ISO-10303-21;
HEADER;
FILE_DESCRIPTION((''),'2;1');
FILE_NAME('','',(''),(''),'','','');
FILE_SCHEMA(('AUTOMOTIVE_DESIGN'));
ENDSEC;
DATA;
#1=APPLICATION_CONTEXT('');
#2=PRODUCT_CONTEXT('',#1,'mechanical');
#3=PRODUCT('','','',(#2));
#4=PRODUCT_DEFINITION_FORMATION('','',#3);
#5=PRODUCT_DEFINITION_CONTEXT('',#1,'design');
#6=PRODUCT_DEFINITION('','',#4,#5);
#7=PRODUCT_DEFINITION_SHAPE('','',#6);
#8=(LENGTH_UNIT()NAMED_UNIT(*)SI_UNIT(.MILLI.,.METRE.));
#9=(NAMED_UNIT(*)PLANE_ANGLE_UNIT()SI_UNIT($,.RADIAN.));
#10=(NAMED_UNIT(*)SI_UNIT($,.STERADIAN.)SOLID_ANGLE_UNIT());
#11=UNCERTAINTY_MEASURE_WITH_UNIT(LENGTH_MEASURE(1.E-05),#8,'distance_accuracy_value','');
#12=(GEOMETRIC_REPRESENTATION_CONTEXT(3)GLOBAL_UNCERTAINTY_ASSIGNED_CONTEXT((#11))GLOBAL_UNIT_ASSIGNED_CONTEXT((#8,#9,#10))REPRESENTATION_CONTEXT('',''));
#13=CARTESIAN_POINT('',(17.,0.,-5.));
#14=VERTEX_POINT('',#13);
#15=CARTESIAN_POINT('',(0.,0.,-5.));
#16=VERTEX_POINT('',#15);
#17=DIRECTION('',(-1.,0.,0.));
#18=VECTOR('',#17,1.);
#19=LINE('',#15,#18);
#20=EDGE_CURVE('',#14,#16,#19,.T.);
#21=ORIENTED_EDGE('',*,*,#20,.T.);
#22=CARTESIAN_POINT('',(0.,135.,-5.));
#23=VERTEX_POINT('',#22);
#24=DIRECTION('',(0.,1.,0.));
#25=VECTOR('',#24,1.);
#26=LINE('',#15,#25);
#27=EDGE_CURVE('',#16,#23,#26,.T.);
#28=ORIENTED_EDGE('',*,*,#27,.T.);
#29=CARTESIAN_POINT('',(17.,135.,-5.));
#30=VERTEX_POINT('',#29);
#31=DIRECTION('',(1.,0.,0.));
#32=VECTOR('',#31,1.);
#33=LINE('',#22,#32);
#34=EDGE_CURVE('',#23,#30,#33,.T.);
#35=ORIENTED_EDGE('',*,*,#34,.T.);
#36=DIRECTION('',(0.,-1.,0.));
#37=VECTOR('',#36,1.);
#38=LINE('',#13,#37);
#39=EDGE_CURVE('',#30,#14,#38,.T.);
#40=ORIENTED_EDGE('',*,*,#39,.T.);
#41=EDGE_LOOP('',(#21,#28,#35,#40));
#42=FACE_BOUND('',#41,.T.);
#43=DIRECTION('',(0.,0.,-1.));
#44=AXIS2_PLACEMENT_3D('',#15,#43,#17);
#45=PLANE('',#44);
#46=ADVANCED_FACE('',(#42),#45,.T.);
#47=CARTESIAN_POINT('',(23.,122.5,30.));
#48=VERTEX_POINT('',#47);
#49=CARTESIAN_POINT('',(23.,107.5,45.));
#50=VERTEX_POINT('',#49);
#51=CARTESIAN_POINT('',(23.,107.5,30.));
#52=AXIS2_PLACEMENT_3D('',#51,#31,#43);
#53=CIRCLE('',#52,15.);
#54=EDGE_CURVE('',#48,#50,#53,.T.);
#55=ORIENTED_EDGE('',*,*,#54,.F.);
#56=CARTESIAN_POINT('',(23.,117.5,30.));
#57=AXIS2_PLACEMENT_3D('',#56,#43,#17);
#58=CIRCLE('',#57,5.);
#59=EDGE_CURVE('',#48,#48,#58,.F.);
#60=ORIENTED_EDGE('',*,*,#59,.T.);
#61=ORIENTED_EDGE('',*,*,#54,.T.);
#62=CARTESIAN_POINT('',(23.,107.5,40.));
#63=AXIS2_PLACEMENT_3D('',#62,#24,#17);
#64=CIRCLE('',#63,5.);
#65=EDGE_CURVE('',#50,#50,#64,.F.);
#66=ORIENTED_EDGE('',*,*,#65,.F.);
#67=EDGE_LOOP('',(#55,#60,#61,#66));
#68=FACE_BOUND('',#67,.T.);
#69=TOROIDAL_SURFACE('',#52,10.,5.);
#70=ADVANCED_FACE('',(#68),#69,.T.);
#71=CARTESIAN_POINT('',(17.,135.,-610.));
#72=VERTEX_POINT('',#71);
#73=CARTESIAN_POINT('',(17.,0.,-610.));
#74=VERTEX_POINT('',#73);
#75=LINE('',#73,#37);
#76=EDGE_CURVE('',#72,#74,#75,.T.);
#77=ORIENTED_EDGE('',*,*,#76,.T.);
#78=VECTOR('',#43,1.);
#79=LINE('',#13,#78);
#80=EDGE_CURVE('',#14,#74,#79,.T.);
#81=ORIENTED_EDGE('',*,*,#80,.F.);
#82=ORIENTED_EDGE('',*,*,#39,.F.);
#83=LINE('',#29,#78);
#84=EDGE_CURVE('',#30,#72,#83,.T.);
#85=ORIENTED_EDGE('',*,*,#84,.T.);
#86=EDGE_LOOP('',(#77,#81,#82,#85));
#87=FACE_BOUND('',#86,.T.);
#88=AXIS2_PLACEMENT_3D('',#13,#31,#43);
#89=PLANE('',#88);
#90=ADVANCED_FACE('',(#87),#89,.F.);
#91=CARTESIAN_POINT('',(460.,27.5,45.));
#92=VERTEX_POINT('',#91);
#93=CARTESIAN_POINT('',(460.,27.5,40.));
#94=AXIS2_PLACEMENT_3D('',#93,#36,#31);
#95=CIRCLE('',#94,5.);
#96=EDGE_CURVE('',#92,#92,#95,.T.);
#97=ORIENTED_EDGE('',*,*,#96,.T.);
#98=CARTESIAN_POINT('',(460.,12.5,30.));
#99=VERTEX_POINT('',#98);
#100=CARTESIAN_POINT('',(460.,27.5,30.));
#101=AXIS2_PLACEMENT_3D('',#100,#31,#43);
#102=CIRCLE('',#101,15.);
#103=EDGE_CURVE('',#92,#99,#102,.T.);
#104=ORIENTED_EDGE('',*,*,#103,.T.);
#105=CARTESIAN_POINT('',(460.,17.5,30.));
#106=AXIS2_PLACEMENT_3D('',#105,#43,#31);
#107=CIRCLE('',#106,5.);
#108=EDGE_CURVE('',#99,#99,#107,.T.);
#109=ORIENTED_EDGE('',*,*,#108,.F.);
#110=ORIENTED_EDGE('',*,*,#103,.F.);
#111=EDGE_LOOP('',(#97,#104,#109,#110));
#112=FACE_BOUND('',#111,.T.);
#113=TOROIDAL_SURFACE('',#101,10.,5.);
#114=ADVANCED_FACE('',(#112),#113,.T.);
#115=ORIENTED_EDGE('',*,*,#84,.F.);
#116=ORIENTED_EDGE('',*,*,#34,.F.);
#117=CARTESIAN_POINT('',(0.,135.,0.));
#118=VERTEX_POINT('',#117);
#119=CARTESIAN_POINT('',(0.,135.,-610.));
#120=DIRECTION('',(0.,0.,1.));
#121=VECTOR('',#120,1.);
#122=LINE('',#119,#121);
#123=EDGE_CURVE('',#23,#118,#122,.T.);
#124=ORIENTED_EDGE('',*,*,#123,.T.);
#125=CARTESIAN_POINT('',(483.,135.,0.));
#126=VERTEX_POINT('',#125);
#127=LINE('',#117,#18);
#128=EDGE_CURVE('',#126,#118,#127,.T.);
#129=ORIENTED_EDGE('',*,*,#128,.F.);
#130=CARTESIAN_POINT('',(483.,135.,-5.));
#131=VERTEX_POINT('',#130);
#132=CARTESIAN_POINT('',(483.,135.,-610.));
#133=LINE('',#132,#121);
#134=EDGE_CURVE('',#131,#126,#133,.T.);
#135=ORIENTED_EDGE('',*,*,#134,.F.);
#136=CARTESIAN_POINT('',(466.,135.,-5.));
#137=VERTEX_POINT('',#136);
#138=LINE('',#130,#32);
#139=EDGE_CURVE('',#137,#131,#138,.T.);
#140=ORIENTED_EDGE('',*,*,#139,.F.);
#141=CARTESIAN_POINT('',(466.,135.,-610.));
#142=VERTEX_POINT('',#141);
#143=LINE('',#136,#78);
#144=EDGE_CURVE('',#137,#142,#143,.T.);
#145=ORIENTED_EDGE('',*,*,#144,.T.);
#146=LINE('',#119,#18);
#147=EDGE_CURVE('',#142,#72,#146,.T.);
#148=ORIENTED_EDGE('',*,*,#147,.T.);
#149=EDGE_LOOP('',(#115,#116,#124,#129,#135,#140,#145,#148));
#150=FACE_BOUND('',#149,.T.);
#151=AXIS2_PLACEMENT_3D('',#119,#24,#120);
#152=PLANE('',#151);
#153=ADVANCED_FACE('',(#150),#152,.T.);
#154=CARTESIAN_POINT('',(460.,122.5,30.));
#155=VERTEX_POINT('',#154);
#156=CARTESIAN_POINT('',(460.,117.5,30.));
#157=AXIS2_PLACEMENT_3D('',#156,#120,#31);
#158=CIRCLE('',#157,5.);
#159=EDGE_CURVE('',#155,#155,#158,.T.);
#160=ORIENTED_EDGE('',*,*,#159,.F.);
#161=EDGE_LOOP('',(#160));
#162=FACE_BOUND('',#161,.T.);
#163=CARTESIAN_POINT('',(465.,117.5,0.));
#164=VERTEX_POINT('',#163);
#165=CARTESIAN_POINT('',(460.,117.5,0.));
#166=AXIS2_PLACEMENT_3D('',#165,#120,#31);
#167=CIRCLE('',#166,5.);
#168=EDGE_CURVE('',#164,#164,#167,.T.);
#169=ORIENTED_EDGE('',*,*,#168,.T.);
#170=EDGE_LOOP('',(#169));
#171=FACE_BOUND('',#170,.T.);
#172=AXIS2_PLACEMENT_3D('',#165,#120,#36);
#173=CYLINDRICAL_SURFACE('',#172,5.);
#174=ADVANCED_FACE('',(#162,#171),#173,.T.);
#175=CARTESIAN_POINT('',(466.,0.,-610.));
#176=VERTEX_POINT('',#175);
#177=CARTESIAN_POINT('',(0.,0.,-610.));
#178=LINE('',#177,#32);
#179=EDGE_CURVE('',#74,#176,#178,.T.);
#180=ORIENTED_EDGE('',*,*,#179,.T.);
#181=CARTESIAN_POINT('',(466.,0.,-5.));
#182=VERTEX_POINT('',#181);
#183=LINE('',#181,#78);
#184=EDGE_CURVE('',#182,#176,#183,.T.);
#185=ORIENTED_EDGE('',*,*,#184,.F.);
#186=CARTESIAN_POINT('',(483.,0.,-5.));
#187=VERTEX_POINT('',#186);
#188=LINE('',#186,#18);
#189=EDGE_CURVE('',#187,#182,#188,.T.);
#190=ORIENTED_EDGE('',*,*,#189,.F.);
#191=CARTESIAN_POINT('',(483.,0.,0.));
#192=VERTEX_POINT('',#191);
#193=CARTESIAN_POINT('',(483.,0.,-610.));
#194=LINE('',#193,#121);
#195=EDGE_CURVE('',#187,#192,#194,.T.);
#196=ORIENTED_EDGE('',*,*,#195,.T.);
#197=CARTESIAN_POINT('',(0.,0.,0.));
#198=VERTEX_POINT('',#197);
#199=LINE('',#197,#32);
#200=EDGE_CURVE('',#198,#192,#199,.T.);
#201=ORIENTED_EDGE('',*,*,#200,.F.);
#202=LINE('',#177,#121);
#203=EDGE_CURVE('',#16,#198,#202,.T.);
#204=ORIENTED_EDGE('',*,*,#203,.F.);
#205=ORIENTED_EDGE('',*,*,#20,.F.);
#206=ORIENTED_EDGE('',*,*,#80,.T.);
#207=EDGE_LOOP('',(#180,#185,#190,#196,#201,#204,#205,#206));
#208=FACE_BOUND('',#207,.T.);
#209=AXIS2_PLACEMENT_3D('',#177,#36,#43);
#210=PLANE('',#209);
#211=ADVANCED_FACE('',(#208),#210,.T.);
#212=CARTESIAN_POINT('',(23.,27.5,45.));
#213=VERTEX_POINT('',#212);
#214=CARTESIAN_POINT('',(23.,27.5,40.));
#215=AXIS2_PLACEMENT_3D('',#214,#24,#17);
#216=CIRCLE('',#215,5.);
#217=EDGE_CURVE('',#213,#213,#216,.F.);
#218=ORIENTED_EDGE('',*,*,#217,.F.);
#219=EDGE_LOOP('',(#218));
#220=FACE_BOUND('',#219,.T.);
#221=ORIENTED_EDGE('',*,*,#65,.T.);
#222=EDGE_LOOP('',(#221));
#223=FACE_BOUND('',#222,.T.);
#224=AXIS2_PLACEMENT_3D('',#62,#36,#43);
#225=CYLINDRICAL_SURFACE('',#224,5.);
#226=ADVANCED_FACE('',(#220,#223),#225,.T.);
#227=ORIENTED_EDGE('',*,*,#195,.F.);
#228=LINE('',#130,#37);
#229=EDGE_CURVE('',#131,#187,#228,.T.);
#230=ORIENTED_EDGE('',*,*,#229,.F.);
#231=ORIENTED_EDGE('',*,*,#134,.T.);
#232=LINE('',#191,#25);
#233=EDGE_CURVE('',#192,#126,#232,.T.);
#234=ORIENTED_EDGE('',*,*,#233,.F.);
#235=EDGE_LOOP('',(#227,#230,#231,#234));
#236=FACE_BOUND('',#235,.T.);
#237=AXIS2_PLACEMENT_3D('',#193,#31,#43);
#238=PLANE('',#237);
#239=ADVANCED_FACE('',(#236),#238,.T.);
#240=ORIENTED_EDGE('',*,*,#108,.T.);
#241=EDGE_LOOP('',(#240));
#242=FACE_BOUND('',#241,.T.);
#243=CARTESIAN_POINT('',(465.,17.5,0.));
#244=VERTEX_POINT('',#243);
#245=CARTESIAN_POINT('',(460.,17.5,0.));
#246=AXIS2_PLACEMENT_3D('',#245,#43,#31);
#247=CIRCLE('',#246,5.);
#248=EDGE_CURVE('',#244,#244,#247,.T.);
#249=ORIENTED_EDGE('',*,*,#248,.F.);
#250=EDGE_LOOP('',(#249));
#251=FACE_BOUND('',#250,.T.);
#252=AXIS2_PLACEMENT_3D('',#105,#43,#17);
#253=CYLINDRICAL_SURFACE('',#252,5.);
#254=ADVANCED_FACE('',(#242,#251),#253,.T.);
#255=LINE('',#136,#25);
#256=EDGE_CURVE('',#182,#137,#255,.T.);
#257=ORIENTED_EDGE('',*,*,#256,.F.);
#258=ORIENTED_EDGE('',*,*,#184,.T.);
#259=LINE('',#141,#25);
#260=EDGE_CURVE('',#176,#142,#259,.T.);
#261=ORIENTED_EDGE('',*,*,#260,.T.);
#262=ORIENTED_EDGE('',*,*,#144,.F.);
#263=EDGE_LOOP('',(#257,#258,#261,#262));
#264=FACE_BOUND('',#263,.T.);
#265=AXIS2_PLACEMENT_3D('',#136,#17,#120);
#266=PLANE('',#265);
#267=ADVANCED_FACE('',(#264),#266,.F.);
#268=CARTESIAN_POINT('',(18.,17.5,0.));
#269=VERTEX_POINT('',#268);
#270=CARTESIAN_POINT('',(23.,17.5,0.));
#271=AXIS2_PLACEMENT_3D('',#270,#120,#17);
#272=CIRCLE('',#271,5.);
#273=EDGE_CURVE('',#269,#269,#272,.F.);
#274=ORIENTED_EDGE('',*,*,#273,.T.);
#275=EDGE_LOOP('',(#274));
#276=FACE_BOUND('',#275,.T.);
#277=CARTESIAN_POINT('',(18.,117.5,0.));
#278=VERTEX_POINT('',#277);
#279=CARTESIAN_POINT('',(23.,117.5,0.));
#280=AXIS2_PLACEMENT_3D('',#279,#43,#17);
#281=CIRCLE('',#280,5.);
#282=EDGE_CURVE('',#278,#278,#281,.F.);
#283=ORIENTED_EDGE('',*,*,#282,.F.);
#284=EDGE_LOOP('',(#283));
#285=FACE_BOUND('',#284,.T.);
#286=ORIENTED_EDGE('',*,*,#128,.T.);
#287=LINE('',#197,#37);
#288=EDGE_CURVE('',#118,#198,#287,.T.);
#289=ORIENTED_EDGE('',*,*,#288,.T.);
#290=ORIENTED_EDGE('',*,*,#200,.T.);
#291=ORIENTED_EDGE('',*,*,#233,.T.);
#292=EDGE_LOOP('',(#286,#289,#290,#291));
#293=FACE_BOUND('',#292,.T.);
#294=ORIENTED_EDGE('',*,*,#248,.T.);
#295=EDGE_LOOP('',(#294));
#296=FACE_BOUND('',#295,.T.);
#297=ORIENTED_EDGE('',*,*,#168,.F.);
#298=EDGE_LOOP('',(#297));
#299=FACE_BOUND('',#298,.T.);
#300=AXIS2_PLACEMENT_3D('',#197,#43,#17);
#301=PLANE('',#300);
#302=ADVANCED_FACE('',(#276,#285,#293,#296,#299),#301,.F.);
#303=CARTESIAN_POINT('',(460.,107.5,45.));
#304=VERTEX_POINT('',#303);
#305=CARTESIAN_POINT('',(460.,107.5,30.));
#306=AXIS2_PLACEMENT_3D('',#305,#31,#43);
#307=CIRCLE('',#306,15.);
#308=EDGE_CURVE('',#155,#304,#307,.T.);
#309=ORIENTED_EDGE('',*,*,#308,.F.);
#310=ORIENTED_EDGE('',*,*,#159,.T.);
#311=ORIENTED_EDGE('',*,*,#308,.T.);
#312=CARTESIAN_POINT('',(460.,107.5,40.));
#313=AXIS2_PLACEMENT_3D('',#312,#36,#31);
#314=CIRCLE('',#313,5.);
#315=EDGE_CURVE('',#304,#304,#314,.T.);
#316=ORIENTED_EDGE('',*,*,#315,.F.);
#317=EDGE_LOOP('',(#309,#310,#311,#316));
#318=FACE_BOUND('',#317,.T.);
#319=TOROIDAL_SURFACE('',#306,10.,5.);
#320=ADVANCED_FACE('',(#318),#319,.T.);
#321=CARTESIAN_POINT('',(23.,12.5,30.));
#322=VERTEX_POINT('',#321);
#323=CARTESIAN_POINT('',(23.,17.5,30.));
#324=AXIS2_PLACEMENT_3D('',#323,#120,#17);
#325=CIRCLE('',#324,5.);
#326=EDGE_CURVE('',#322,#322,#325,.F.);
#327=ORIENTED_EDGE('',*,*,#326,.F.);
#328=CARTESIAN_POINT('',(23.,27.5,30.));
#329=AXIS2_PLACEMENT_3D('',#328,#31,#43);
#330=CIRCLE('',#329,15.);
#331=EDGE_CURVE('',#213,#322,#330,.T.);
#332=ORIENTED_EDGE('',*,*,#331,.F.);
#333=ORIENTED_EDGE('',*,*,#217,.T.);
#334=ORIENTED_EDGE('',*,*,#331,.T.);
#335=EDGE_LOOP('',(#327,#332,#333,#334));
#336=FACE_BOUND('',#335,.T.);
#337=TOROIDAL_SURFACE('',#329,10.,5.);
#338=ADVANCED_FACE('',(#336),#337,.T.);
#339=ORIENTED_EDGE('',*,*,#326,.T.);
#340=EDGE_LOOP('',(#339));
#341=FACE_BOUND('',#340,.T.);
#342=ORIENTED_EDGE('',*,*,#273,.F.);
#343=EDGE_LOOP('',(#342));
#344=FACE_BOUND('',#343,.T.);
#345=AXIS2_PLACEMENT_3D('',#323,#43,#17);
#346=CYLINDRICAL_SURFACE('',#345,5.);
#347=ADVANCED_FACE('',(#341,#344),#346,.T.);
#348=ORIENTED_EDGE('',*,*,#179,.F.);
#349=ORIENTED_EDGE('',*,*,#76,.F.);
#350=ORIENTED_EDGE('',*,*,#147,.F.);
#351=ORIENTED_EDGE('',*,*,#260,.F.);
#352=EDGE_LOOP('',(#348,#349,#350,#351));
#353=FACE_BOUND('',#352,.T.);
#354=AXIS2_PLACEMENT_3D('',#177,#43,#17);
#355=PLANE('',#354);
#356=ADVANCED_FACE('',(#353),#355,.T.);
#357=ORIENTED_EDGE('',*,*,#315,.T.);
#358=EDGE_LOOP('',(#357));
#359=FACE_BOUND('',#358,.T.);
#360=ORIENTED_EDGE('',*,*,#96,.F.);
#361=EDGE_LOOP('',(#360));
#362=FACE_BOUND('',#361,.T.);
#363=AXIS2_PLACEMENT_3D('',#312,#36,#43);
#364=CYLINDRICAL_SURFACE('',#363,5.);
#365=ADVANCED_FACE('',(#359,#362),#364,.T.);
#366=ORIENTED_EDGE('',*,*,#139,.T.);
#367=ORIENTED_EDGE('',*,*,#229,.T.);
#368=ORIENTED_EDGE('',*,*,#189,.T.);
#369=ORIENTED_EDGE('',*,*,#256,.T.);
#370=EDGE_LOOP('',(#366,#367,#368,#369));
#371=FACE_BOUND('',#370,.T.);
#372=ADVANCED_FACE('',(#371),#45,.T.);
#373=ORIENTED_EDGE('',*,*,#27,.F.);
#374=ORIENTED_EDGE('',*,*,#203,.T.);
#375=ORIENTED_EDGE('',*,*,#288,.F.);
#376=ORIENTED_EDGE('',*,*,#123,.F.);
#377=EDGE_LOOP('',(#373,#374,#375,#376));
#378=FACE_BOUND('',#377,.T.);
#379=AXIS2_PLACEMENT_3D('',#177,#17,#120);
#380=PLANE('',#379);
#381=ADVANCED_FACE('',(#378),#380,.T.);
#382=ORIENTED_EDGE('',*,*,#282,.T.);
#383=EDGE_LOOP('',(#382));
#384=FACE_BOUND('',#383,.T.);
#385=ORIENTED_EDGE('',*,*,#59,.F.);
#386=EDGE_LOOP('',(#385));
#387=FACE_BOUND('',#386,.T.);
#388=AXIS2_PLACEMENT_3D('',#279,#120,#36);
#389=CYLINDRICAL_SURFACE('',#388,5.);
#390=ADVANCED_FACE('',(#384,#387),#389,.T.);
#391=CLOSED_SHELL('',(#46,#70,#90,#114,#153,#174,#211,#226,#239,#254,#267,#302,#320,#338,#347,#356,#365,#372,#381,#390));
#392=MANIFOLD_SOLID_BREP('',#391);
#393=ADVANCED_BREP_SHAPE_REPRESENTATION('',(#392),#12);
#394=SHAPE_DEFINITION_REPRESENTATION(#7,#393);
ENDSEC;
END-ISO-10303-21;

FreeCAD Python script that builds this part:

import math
import FreeCAD as App
import Part
import Sketcher
from FreeCAD import Vector
Q = App.Units.Quantity

doc = App.newDocument("Part")
body = doc.addObject("PartDesign::Body", "Body")

# Sketch on XY plane
sketch1 = body.newObject("Sketcher::SketchObject", "Sketch")
sketch1.AttachmentSupport = (doc.getObject("XY_Plane"), [""])
sketch1.MapMode = "FlatFace"
sketch1.addGeometry([
    Part.LineSegment(Vector(0, 135, 0), Vector(0, 0, 0)),
    Part.LineSegment(Vector(0, 0, 0), Vector(483, 0, 0)),
    Part.LineSegment(Vector(483, 0, 0), Vector(483, 135, 0)),
    Part.LineSegment(Vector(483, 135, 0), Vector(0, 135, 0)),
], False)
sketch1.addConstraint([
    Sketcher.Constraint("Coincident", 0, 2, 1, 1),
    Sketcher.Constraint("Coincident", 1, 2, 2, 1),
    Sketcher.Constraint("Coincident", 2, 2, 3, 1),
    Sketcher.Constraint("Coincident", 3, 2, 0, 1),
    Sketcher.Constraint("Vertical", 0),
    Sketcher.Constraint("Horizontal", 1),
    Sketcher.Constraint("Vertical", 2),
    Sketcher.Constraint("Horizontal", 3),
    Sketcher.Constraint("Coincident", 0, 2, -1, 1),
    Sketcher.Constraint("DistanceX", 1, 1, 1, 2, Q("483 mm")),
    Sketcher.Constraint("DistanceY", 0, 2, 0, 1, Q("135 mm")),
])
pad1 = body.newObject("PartDesign::Pad", "Pad")
pad1.Profile = sketch1
pad1.Length = 610
pad1.Reversed = True

# Sketch on XY plane
sketch2 = body.newObject("Sketcher::SketchObject", "Sketch001")
sketch2.AttachmentSupport = (doc.getObject("XY_Plane"), [""])
sketch2.MapMode = "FlatFace"
sketch2.AttachmentOffset = App.Placement(Vector(0, 0, -610), App.Rotation())
sketch2.addGeometry([
    Part.LineSegment(Vector(483, 135, 0), Vector(483, 0, 0)),  # 0
    Part.LineSegment(Vector(483, 0, 0), Vector(466, 0, 0)),  # 1
    Part.LineSegment(Vector(466, 0, 0), Vector(466, 135, 0)),  # 2
    Part.LineSegment(Vector(466, 135, 0), Vector(483, 135, 0)),  # 3
    Part.LineSegment(Vector(17, 135, 0), Vector(17, 0, 0)),  # 4
    Part.LineSegment(Vector(17, 0, 0), Vector(0, 0, 0)),  # 5
    Part.LineSegment(Vector(0, 0, 0), Vector(0, 135, 0)),  # 6
    Part.LineSegment(Vector(0, 135, 0), Vector(17, 135, 0)),  # 7
], False)
sketch2.addConstraint([
    Sketcher.Constraint("Coincident", 0, 2, 1, 1),
    Sketcher.Constraint("Coincident", 1, 2, 2, 1),
    Sketcher.Constraint("Coincident", 2, 2, 3, 1),
    Sketcher.Constraint("Coincident", 3, 2, 0, 1),
    Sketcher.Constraint("Coincident", 4, 2, 5, 1),
    Sketcher.Constraint("Coincident", 5, 2, 6, 1),
    Sketcher.Constraint("Coincident", 6, 2, 7, 1),
    Sketcher.Constraint("Coincident", 7, 2, 4, 1),
    Sketcher.Constraint("Vertical", 0),
    Sketcher.Constraint("Horizontal", 1),
    Sketcher.Constraint("Vertical", 2),
    Sketcher.Constraint("Horizontal", 3),
    Sketcher.Constraint("Vertical", 4),
    Sketcher.Constraint("Horizontal", 5),
    Sketcher.Constraint("Vertical", 6),
    Sketcher.Constraint("Horizontal", 7),
    Sketcher.Constraint("Coincident", 5, 2, -1, 1),
    Sketcher.Constraint("PointOnObject", 0, 2, -1),
    Sketcher.Constraint("Horizontal", 3, 2, 6, 2),
    Sketcher.Constraint("Equal", 3, 5),
    Sketcher.Constraint("DistanceX", 1, 2, 1, 1, Q("17 mm")),
    Sketcher.Constraint("DistanceY", 0, 2, 0, 1, Q("135 mm")),
    Sketcher.Constraint("DistanceX", -1, 1, 0, 2, Q("483 mm")),
])
pocket1 = body.newObject("PartDesign::Pocket", "Pocket")
pocket1.Profile = sketch2
pocket1.Length = 605
pocket1.Reversed = True

# Sketch on XY plane
sketch3 = body.newObject("Sketcher::SketchObject", "Sketch002")
sketch3.AttachmentSupport = (doc.getObject("XY_Plane"), [""])
sketch3.MapMode = "FlatFace"
sketch3.addGeometry(Part.Circle(Vector(460, 117.5, 0), Vector(0, 0, 1), 5), False)
sketch3.addConstraint([
    Sketcher.Constraint("Diameter", 0, Q("10 mm")),
    Sketcher.Constraint("DistanceX", -1, 1, 0, 3, Q("460 mm")),
    Sketcher.Constraint("DistanceY", -1, 1, 0, 3, Q("117.5 mm")),
])

# Sketch on YZ plane
sketch4 = body.newObject("Sketcher::SketchObject", "Sketch003")
sketch4.AttachmentSupport = (doc.getObject("YZ_Plane"), [""])
sketch4.MapMode = "FlatFace"
sketch4.AttachmentOffset = App.Placement(Vector(0, 0, 460), App.Rotation())
sketch4.addGeometry([
    Part.LineSegment(Vector(117.5, 0, 0), Vector(117.5, 30, 0)),  # 0
    Part.ArcOfCircle(Part.Circle(Vector(107.5, 30, 0), Vector(0, 0, 1), 10), math.radians(0), math.radians(90)),  # 1
    Part.LineSegment(Vector(107.5, 40, 0), Vector(27.5, 40, 0)),  # 2
    Part.ArcOfCircle(Part.Circle(Vector(27.5, 30, 0), Vector(0, 0, 1), 10), math.radians(90), math.radians(180)),  # 3
    Part.LineSegment(Vector(17.5, 30, 0), Vector(17.5, 0, 0)),  # 4
], False)
sketch4.addConstraint([
    Sketcher.Constraint("Tangent", 0, 2, 1, 1),
    Sketcher.Constraint("Tangent", 1, 2, 2, 1),
    Sketcher.Constraint("Tangent", 2, 2, 3, 1),
    Sketcher.Constraint("Tangent", 3, 2, 4, 1),
    Sketcher.Constraint("Vertical", 0),
    Sketcher.Constraint("Horizontal", 2),
    Sketcher.Constraint("Vertical", 4),
    Sketcher.Constraint("Equal", 1, 3),
    Sketcher.Constraint("PointOnObject", 0, 1, -1),
    Sketcher.Constraint("PointOnObject", 4, 2, -1),
    Sketcher.Constraint("Radius", 1, Q("10 mm")),
    Sketcher.Constraint("DistanceX", 2, 2, 2, 1, Q("80 mm")),
    Sketcher.Constraint("DistanceY", 0, 1, 0, 2, Q("30 mm")),
    Sketcher.Constraint("DistanceX", -1, 1, 1, 3, Q("107.5 mm")),
])
doc.recompute()

additivepipe = body.newObject("PartDesign::AdditivePipe", "AdditivePipe")
additivepipe.Profile = sketch3
additivepipe.Spine = (sketch4, ["Edge1", "Edge2", "Edge3", "Edge4", "Edge5"])
doc.recompute()

datumplane = body.newObject("PartDesign::Plane", "DatumPlane")
datumplane.AttachmentSupport = (doc.getObject("YZ_Plane"), [""])
datumplane.MapMode = "FlatFace"
datumplane.AttachmentOffset = App.Placement(Vector(0, 0, 241.5), App.Rotation())
mirrored = body.newObject("PartDesign::Mirrored", "Mirrored")
mirrored.Originals = [additivepipe]
mirrored.MirrorPlane = (datumplane, [""])
body.Tip = mirrored

doc.recompute()
